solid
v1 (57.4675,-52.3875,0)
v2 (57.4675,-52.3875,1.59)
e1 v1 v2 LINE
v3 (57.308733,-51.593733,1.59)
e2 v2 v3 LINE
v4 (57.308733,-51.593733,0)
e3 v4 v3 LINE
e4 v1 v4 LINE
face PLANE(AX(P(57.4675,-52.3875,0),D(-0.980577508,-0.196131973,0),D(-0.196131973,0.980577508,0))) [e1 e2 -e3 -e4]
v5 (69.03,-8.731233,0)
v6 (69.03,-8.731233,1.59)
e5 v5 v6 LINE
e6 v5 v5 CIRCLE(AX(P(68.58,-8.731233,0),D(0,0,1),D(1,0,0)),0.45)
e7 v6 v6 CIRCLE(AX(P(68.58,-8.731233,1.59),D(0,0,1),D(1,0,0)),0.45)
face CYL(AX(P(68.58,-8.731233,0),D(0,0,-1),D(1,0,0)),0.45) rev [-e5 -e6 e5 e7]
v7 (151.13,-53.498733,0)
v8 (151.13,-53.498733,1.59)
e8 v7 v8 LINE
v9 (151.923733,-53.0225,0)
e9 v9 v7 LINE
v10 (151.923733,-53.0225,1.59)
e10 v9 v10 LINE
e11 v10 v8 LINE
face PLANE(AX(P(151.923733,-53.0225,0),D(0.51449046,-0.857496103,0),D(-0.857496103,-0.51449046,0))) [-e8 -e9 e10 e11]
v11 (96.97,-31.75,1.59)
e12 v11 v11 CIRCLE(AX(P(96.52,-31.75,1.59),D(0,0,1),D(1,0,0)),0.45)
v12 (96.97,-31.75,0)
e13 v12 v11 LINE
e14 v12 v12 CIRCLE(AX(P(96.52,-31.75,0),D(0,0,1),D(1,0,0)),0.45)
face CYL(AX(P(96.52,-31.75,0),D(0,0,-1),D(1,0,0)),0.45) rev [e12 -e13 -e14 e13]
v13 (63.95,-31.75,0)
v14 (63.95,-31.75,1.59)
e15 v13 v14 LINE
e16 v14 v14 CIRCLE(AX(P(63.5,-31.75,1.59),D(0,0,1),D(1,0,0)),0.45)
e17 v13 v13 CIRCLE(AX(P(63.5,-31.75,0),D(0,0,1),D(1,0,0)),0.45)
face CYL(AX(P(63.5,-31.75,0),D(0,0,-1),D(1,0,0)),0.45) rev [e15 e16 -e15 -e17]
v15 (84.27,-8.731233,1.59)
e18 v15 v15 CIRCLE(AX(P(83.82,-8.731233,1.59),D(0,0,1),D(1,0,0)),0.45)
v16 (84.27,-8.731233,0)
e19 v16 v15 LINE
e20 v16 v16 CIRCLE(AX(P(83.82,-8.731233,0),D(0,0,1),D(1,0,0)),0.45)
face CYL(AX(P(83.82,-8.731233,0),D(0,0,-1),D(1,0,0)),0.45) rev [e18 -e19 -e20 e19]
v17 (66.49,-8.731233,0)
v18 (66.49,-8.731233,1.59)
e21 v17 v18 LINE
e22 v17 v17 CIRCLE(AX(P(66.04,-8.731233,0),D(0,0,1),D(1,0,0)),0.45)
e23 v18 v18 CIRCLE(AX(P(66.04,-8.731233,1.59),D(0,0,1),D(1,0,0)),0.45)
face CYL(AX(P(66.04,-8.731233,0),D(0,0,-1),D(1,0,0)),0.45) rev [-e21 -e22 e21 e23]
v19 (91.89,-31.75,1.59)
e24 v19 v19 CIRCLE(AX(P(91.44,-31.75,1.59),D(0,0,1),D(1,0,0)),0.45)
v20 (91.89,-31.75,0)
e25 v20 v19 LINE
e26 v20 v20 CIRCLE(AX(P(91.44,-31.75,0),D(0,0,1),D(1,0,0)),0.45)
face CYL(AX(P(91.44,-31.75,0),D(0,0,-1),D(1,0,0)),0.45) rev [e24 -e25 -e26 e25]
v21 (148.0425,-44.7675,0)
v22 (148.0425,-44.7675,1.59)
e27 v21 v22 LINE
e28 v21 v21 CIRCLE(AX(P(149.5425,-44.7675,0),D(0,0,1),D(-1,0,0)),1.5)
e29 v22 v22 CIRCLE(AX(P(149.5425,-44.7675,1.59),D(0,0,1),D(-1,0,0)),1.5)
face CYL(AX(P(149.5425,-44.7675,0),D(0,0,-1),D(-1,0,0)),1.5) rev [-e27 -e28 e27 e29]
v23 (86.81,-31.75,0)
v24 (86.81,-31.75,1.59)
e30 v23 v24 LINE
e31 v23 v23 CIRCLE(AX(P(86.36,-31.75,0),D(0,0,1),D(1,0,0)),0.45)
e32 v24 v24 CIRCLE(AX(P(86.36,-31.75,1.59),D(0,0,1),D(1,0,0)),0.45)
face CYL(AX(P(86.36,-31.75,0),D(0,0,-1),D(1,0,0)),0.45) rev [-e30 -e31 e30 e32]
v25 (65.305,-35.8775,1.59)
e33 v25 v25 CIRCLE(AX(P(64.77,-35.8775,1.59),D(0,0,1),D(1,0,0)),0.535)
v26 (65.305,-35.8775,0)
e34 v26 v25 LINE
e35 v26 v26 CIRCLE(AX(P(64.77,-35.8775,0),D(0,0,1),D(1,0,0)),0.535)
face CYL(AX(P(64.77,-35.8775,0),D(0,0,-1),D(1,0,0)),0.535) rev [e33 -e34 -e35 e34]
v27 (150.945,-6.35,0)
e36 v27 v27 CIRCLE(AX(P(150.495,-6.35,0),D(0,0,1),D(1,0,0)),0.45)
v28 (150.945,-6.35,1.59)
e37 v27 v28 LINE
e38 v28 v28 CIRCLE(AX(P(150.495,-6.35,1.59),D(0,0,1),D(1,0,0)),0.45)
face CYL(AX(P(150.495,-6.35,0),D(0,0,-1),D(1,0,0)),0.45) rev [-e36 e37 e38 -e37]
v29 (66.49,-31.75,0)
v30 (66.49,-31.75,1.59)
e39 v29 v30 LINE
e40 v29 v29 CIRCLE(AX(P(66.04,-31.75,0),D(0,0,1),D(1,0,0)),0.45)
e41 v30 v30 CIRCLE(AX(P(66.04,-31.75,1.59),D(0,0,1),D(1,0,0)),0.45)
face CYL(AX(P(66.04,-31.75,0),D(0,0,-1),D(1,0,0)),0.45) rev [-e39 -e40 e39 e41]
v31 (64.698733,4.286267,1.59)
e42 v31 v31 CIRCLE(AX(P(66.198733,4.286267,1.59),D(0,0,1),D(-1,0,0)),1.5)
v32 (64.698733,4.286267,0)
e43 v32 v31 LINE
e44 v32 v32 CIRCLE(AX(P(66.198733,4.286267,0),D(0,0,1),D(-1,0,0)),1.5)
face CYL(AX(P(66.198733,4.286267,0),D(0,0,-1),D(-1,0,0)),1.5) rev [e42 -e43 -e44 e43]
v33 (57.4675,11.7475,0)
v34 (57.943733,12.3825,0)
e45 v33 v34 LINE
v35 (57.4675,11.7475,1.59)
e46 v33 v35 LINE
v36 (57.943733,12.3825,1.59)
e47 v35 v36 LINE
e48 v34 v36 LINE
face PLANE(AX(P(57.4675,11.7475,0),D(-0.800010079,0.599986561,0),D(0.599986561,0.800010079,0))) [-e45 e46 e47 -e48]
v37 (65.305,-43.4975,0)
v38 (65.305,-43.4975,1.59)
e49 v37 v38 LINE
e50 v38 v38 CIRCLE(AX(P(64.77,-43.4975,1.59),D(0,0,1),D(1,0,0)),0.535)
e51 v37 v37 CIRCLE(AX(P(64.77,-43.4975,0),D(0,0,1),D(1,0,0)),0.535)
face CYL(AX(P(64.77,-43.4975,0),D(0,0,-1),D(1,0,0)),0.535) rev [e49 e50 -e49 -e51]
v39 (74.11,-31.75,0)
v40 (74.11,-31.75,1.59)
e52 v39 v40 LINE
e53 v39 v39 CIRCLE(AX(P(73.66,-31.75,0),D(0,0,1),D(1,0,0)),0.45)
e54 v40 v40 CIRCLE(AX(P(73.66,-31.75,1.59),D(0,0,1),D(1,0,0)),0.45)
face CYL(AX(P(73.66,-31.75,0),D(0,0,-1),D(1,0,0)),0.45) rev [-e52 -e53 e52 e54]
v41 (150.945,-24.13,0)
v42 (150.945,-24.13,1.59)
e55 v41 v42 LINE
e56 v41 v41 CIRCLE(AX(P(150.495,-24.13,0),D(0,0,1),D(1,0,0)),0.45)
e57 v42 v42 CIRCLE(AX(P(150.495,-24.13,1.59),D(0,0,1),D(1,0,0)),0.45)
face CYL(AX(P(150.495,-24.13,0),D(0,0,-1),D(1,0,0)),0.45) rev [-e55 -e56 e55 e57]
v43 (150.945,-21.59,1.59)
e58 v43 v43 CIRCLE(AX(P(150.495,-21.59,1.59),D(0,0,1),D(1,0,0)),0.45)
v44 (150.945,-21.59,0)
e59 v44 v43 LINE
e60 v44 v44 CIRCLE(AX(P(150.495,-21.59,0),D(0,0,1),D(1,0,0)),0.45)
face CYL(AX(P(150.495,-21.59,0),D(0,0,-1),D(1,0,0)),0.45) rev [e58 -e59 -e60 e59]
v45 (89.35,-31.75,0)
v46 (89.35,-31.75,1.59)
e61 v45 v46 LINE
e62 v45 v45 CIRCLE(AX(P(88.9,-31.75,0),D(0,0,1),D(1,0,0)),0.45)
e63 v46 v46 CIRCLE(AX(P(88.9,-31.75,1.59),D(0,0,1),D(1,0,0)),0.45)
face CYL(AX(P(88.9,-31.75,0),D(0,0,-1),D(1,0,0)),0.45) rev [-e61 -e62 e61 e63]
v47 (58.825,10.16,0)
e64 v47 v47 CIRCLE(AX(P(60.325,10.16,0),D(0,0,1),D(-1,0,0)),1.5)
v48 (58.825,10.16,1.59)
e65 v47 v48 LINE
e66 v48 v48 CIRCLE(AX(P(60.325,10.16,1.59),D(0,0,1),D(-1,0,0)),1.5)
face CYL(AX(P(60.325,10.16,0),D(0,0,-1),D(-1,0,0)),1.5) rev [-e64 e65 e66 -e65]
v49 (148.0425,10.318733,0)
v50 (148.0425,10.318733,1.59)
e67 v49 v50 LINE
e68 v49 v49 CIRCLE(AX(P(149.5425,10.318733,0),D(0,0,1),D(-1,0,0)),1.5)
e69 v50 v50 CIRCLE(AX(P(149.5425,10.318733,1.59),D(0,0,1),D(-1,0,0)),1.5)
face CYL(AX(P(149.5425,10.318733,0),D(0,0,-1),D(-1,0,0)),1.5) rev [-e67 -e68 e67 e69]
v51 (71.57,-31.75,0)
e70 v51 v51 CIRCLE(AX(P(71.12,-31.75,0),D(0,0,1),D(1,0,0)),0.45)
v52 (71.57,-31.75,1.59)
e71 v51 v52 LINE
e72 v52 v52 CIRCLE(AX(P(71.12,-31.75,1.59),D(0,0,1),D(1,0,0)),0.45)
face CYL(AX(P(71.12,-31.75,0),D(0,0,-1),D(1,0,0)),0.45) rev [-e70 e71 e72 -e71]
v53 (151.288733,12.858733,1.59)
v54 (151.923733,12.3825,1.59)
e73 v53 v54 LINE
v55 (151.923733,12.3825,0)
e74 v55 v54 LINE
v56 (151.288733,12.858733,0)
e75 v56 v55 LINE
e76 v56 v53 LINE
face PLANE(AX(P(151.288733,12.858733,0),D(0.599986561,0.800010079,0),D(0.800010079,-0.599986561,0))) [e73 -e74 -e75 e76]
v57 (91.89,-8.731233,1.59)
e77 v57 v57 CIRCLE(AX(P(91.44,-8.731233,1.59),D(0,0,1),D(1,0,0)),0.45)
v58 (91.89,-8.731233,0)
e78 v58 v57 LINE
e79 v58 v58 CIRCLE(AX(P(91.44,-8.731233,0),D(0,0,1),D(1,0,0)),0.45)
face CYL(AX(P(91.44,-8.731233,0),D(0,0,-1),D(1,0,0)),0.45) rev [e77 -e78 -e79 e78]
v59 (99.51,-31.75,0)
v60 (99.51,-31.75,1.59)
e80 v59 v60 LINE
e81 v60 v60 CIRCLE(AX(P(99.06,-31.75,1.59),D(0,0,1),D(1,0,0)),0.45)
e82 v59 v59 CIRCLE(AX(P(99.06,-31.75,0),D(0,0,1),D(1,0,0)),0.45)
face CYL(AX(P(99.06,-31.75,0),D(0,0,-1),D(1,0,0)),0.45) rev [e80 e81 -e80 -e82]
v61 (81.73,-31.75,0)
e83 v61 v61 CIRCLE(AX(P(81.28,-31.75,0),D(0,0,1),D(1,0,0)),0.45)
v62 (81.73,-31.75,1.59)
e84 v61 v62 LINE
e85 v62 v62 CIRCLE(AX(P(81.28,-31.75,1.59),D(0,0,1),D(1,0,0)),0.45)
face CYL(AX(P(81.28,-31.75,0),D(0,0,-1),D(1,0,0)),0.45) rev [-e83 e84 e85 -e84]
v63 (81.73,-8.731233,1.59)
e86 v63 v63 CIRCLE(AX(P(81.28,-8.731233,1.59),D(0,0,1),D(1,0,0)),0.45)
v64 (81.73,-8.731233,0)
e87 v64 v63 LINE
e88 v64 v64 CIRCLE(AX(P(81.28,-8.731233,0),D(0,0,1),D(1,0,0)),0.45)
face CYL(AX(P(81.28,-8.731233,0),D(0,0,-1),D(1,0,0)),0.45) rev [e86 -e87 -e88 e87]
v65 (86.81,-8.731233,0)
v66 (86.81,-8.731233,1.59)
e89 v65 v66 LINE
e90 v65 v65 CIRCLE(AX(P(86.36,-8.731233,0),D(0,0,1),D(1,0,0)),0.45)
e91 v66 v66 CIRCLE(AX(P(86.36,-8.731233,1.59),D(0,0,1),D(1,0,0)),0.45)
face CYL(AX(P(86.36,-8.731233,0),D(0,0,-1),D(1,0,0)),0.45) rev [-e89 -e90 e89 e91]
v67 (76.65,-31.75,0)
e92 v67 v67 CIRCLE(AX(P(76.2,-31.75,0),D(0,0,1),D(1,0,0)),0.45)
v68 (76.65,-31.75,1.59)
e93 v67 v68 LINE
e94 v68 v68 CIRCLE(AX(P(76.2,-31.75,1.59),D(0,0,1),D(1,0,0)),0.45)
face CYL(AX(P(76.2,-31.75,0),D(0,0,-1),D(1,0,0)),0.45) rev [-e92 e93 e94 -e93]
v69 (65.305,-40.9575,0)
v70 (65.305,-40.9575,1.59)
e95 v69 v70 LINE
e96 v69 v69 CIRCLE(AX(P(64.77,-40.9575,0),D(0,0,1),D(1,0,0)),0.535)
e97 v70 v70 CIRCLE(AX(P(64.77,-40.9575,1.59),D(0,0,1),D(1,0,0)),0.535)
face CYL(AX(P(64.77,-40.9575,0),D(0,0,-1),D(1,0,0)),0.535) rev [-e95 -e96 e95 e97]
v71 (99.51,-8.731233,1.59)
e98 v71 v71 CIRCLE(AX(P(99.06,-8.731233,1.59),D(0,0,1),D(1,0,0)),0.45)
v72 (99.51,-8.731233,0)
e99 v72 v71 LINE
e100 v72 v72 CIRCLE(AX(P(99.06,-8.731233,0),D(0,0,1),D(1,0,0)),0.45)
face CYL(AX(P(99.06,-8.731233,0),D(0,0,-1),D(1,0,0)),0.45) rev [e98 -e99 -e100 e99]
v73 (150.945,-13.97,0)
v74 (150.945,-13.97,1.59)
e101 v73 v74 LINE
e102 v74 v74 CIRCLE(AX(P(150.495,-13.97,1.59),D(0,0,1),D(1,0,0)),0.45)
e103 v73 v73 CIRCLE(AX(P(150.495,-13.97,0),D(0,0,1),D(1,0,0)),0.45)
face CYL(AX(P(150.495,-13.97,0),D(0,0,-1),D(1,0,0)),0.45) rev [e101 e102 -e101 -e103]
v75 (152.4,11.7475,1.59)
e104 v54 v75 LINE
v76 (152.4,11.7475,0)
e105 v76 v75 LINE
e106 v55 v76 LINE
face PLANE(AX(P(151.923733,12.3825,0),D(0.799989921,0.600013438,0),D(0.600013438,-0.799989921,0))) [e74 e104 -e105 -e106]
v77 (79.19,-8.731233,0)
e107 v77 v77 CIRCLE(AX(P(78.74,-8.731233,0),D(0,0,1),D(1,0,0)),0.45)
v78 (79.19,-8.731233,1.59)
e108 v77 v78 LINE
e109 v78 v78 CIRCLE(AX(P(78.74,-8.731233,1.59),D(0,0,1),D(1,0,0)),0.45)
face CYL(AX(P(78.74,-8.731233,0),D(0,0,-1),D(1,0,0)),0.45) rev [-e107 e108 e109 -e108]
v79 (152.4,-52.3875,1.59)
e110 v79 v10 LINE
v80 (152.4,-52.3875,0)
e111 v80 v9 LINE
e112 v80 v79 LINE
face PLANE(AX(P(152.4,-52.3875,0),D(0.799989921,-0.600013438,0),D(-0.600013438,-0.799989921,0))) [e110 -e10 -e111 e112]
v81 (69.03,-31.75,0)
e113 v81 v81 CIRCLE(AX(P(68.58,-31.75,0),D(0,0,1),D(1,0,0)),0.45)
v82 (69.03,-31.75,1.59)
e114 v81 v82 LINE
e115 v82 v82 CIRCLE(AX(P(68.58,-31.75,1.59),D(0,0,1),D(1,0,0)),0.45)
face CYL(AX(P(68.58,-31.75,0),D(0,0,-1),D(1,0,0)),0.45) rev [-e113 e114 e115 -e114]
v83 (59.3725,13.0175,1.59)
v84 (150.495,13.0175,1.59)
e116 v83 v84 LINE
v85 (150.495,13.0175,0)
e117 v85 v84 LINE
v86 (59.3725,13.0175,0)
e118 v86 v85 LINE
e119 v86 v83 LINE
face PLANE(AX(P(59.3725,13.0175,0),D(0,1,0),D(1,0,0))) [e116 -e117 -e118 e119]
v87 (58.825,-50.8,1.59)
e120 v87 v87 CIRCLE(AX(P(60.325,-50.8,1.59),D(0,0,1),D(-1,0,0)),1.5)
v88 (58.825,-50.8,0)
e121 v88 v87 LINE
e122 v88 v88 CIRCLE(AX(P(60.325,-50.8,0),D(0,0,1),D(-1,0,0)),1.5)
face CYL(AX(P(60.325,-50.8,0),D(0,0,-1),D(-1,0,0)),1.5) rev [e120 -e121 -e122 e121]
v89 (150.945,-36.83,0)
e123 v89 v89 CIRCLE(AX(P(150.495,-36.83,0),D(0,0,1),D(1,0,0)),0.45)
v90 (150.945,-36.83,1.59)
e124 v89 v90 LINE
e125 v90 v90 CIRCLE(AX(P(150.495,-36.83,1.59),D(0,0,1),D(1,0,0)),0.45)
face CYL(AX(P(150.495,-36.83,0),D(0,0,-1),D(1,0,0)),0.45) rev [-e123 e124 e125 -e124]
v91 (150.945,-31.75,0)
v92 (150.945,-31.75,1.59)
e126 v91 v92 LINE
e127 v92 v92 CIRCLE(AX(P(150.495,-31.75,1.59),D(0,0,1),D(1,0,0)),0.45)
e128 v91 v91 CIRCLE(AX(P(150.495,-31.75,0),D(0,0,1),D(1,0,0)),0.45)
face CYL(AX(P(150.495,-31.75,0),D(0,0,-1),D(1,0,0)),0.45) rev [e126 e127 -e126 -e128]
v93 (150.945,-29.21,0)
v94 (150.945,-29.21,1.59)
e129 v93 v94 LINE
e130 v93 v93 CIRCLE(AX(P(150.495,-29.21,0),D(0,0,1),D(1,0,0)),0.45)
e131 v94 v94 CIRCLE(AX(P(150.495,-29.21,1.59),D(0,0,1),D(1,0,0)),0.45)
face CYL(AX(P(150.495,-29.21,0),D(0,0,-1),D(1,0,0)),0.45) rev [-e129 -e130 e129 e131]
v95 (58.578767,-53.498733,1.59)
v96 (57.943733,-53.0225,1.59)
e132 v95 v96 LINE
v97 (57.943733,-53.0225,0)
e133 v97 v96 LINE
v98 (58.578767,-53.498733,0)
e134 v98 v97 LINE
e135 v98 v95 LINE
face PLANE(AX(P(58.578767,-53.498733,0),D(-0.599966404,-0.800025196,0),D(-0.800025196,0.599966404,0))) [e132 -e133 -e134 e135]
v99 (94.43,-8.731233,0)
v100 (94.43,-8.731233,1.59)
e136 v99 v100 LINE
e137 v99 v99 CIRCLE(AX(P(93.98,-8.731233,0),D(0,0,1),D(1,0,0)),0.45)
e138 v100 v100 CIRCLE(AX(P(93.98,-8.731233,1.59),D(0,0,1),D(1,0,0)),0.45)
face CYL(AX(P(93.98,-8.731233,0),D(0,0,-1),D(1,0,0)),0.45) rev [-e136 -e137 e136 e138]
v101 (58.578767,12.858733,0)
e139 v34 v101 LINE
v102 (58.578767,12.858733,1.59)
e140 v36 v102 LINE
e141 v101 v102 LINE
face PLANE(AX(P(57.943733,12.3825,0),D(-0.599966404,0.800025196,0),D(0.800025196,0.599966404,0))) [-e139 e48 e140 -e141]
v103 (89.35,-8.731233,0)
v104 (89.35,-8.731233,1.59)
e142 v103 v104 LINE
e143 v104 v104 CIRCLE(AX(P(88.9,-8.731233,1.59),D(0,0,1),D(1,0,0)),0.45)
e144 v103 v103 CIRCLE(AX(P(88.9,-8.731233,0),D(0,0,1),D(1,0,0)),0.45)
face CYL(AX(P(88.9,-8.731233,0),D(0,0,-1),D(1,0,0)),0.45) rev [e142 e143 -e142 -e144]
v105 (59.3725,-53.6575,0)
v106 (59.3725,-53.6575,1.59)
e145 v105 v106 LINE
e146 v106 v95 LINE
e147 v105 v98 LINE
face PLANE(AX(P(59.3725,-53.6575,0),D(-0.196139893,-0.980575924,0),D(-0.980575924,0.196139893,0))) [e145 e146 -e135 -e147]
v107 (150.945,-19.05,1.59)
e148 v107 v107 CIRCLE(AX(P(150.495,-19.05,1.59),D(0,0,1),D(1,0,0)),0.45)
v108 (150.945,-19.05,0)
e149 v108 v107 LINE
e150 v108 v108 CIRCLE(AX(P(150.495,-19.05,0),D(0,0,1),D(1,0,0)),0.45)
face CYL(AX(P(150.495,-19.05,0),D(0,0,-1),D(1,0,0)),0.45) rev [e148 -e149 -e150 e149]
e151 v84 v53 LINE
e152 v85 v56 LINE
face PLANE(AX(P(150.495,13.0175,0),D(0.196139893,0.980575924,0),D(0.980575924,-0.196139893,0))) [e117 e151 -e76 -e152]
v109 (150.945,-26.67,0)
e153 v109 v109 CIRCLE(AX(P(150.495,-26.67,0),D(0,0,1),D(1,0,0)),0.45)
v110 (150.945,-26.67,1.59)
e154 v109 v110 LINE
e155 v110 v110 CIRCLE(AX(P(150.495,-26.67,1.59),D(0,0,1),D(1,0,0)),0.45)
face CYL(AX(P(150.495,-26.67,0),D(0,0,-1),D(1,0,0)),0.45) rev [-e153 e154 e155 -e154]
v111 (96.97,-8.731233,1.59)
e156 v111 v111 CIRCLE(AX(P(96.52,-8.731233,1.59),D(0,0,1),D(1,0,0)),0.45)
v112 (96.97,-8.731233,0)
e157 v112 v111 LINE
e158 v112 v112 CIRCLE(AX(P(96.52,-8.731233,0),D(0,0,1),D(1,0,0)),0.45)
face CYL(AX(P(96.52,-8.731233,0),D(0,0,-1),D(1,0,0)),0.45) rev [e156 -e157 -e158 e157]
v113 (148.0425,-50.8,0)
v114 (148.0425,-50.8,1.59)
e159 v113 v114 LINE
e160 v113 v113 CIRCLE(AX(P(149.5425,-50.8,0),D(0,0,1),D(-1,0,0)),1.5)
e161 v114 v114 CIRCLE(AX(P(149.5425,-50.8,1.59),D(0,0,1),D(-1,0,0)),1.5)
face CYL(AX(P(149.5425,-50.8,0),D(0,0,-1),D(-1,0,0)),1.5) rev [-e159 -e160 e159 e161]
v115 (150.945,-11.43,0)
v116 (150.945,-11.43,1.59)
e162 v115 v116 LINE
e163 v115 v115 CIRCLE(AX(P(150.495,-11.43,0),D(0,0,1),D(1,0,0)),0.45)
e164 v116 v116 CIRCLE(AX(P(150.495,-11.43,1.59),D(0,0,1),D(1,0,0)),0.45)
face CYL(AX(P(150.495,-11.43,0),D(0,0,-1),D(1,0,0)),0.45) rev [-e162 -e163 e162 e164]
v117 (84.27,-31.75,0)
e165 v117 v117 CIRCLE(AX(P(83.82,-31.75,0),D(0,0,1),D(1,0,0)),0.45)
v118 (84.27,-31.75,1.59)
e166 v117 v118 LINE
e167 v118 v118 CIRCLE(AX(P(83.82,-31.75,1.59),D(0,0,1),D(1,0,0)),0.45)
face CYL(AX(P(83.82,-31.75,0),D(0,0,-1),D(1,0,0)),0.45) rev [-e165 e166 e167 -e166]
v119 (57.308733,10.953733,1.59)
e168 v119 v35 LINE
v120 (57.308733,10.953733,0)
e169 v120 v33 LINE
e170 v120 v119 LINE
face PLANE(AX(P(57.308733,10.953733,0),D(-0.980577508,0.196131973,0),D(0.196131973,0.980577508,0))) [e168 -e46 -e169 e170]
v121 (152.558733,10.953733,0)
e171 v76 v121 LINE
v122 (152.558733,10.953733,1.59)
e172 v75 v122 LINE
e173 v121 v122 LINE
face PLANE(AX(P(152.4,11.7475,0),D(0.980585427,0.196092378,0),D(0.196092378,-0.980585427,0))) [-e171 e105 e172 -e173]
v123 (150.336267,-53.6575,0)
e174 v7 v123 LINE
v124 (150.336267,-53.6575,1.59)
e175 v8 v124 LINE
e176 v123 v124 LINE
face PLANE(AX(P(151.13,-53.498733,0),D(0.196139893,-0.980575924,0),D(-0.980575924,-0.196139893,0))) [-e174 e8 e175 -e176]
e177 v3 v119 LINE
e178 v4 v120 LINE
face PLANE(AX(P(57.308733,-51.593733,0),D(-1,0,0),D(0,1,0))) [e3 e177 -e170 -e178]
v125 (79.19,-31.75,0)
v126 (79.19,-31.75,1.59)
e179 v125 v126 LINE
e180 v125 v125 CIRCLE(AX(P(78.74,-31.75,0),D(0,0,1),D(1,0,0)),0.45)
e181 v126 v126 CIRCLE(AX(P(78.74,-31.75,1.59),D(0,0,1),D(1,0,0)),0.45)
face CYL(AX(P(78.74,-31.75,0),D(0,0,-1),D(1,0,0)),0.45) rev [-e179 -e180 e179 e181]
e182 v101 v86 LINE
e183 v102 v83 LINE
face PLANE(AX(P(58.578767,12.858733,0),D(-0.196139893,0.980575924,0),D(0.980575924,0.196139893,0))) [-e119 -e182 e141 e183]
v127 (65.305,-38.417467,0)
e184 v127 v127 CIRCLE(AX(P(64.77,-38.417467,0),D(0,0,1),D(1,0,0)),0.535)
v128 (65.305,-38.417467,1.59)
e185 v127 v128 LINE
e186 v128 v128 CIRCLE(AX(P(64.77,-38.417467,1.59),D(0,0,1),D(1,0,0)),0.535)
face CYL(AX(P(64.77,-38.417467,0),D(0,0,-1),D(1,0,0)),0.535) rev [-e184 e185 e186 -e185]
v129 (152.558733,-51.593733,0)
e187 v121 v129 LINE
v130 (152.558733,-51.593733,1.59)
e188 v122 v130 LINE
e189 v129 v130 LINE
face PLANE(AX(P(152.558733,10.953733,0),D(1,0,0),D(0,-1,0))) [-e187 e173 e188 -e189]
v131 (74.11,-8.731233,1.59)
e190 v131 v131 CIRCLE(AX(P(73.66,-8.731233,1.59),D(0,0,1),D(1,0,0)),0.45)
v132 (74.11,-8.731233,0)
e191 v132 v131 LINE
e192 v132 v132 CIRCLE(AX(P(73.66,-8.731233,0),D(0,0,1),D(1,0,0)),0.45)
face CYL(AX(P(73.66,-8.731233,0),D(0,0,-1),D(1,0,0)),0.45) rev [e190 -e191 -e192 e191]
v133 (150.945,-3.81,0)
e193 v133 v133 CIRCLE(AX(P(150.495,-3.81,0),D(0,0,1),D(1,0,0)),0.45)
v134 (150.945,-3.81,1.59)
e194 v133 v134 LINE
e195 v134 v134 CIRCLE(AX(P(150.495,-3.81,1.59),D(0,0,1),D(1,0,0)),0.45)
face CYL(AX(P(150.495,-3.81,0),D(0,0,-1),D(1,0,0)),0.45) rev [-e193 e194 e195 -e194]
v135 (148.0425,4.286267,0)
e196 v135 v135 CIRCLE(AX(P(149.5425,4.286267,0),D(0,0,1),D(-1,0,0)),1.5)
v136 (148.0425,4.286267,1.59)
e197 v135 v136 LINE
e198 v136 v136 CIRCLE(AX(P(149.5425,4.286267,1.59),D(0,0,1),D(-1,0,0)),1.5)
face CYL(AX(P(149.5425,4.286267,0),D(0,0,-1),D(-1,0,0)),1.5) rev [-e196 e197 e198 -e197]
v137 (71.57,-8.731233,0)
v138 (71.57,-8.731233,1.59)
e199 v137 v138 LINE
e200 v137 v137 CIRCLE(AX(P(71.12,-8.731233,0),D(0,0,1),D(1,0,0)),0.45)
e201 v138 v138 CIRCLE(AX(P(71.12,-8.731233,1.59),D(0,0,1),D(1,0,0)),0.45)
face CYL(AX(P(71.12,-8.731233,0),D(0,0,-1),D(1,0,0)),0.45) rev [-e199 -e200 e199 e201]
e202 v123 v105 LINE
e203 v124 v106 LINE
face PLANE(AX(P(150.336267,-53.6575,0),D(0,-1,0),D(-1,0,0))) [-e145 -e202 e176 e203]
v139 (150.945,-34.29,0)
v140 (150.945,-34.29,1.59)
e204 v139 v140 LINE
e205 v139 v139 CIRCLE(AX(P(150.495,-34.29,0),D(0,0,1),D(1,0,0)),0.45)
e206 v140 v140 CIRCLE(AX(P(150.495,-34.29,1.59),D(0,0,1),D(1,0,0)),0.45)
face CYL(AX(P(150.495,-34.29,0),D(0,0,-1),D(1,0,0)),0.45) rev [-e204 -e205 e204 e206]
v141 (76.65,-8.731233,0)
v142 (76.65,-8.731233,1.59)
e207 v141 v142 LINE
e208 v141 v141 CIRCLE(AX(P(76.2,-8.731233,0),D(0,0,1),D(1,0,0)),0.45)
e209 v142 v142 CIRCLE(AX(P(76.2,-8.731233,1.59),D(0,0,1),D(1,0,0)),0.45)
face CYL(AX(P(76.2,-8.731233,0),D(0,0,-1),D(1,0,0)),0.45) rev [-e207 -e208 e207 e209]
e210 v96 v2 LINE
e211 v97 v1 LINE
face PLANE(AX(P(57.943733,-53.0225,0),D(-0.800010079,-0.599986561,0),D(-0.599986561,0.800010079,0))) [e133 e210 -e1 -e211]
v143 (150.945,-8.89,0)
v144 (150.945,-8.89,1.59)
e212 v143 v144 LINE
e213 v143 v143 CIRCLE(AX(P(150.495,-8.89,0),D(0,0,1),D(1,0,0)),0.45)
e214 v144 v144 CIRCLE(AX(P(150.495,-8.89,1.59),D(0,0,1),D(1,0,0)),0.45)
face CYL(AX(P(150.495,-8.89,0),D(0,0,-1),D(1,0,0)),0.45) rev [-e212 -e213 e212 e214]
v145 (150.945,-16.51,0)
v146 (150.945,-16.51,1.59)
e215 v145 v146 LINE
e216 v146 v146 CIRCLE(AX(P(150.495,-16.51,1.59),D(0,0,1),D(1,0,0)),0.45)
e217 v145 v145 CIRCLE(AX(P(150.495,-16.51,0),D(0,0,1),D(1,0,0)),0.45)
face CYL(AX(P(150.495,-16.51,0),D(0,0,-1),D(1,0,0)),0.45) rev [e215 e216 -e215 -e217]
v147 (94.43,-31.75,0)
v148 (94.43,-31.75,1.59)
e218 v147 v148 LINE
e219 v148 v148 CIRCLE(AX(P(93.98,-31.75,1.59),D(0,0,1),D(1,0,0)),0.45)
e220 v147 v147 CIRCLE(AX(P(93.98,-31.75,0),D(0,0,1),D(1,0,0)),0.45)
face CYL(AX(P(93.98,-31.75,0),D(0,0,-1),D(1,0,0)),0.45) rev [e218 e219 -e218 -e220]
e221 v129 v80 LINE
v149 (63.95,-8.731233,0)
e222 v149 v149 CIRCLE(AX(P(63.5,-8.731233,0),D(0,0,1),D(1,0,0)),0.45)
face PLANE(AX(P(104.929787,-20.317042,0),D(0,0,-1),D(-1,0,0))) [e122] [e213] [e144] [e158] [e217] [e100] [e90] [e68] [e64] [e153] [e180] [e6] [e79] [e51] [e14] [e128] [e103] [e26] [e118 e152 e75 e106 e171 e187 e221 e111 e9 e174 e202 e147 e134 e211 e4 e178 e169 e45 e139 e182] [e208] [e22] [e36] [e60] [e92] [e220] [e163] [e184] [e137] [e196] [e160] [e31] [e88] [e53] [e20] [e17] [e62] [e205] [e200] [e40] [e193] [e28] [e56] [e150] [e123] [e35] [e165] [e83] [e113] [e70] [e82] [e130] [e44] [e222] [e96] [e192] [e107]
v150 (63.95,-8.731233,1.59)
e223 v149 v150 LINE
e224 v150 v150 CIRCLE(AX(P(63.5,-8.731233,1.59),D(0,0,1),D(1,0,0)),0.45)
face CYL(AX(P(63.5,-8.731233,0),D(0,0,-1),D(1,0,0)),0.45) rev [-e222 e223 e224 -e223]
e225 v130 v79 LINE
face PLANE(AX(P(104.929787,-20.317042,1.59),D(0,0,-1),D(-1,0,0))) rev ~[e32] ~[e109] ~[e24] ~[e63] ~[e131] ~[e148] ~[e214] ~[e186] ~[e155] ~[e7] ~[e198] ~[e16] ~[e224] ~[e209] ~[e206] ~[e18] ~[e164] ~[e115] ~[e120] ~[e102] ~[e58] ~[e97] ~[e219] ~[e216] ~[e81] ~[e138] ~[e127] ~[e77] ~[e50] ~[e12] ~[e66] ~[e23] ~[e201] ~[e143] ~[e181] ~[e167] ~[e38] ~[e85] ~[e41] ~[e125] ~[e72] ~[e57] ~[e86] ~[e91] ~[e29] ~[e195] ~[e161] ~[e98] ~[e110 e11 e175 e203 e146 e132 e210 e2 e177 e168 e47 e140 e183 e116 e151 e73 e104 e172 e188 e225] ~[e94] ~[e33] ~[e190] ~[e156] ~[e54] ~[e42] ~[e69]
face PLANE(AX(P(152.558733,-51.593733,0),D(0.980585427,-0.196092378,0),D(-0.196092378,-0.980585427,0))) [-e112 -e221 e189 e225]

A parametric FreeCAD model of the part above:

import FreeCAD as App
import Part
import Sketcher

V = App.Vector
Q = App.Units.Quantity


def add_polygon(sketch, points):
    """Adds a closed chain of lines whose ends are joined by coincident constraints."""
    first, n = sketch.GeometryCount, len(points)
    for a, b in zip(points, points[1:] + points[:1]):
        sketch.addGeometry(Part.LineSegment(App.Vector(*a, 0), App.Vector(*b, 0)), False)
    for i in range(n):
        sketch.addConstraint(Sketcher.Constraint("Coincident", first + i, 2, first + (i + 1) % n, 1))

doc = App.newDocument("Part")
params = doc.addObject("Spreadsheet::Sheet", "Params")
for row, (alias, value) in enumerate([
    ("sketch1_diameter", "3 mm"),
    ("sketch1_diameter2", "0.9 mm"),
    ("sketch1_diameter3", "1.07 mm"),
    ("pad1_length", "1.59 mm"),
], start=1):
    params.set(f"A{row}", alias)
    params.set(f"B{row}", "=" + value)
    params.setAlias(f"B{row}", alias)

body = doc.addObject("PartDesign::Body", "Body")

sketch1 = body.newObject("Sketcher::SketchObject", "Sketch")
sketch1.AttachmentSupport = (doc.getObject("XY_Plane"), [""])
sketch1.MapMode = "FlatFace"
add_polygon(sketch1, [(57.4675, 11.7475), (57.308733, 10.953733), (57.308733, -51.593733), (57.4675, -52.3875), (57.943733, -53.0225), (58.578767, -53.498733), (59.3725, -53.6575), (150.336267, -53.6575), (151.13, -53.498733), (151.923733, -53.0225), (152.4, -52.3875), (152.558733, -51.593733), (152.558733, 10.953733), (152.4, 11.7475), (151.923733, 12.3825), (151.288733, 12.858733), (150.495, 13.0175), (59.3725, 13.0175), (58.578767, 12.858733), (57.943733, 12.3825)])
sketch1.addGeometry(Part.Circle(V(149.5425, -50.8, 0), V(0, 0, 1), 1.5), False)
sketch1.addGeometry(Part.Circle(V(149.5425, -44.7675, 0), V(0, 0, 1), 1.5), False)
sketch1.addGeometry(Part.Circle(V(150.495, -36.83, 0), V(0, 0, 1), 0.45), False)
sketch1.addGeometry(Part.Circle(V(150.495, -34.29, 0), V(0, 0, 1), 0.45), False)
sketch1.addGeometry(Part.Circle(V(150.495, -31.75, 0), V(0, 0, 1), 0.45), False)
sketch1.addGeometry(Part.Circle(V(150.495, -29.21, 0), V(0, 0, 1), 0.45), False)
sketch1.addGeometry(Part.Circle(V(150.495, -26.67, 0), V(0, 0, 1), 0.45), False)
sketch1.addGeometry(Part.Circle(V(150.495, -24.13, 0), V(0, 0, 1), 0.45), False)
sketch1.addGeometry(Part.Circle(V(150.495, -21.59, 0), V(0, 0, 1), 0.45), False)
sketch1.addGeometry(Part.Circle(V(60.325, -50.8, 0), V(0, 0, 1), 1.5), False)
sketch1.addGeometry(Part.Circle(V(64.77, -43.4975, 0), V(0, 0, 1), 0.535), False)
sketch1.addGeometry(Part.Circle(V(64.77, -40.9575, 0), V(0, 0, 1), 0.535), False)
sketch1.addGeometry(Part.Circle(V(64.77, -38.417467, 0), V(0, 0, 1), 0.535), False)
sketch1.addGeometry(Part.Circle(V(99.06, -31.75, 0), V(0, 0, 1), 0.45), False)
sketch1.addGeometry(Part.Circle(V(96.52, -31.75, 0), V(0, 0, 1), 0.45), False)
sketch1.addGeometry(Part.Circle(V(93.98, -31.75, 0), V(0, 0, 1), 0.45), False)
sketch1.addGeometry(Part.Circle(V(91.44, -31.75, 0), V(0, 0, 1), 0.45), False)
sketch1.addGeometry(Part.Circle(V(88.9, -31.75, 0), V(0, 0, 1), 0.45), False)
sketch1.addGeometry(Part.Circle(V(86.36, -31.75, 0), V(0, 0, 1), 0.45), False)
sketch1.addGeometry(Part.Circle(V(83.82, -31.75, 0), V(0, 0, 1), 0.45), False)
sketch1.addGeometry(Part.Circle(V(81.28, -31.75, 0), V(0, 0, 1), 0.45), False)
sketch1.addGeometry(Part.Circle(V(78.74, -31.75, 0), V(0, 0, 1), 0.45), False)
sketch1.addGeometry(Part.Circle(V(76.2, -31.75, 0), V(0, 0, 1), 0.45), False)
sketch1.addGeometry(Part.Circle(V(73.66, -31.75, 0), V(0, 0, 1), 0.45), False)
sketch1.addGeometry(Part.Circle(V(71.12, -31.75, 0), V(0, 0, 1), 0.45), False)
sketch1.addGeometry(Part.Circle(V(64.77, -35.8775, 0), V(0, 0, 1), 0.535), False)
sketch1.addGeometry(Part.Circle(V(68.58, -31.75, 0), V(0, 0, 1), 0.45), False)
sketch1.addGeometry(Part.Circle(V(66.04, -31.75, 0), V(0, 0, 1), 0.45), False)
sketch1.addGeometry(Part.Circle(V(63.5, -31.75, 0), V(0, 0, 1), 0.45), False)
sketch1.addGeometry(Part.Circle(V(150.495, -19.05, 0), V(0, 0, 1), 0.45), False)
sketch1.addGeometry(Part.Circle(V(150.495, -16.51, 0), V(0, 0, 1), 0.45), False)
sketch1.addGeometry(Part.Circle(V(150.495, -13.97, 0), V(0, 0, 1), 0.45), False)
sketch1.addGeometry(Part.Circle(V(150.495, -11.43, 0), V(0, 0, 1), 0.45), False)
sketch1.addGeometry(Part.Circle(V(150.495, -8.89, 0), V(0, 0, 1), 0.45), False)
sketch1.addGeometry(Part.Circle(V(150.495, -6.35, 0), V(0, 0, 1), 0.45), False)
sketch1.addGeometry(Part.Circle(V(150.495, -3.81, 0), V(0, 0, 1), 0.45), False)
sketch1.addGeometry(Part.Circle(V(149.5425, 4.286267, 0), V(0, 0, 1), 1.5), False)
sketch1.addGeometry(Part.Circle(V(149.5425, 10.318733, 0), V(0, 0, 1), 1.5), False)
sketch1.addGeometry(Part.Circle(V(99.06, -8.731233, 0), V(0, 0, 1), 0.45), False)
sketch1.addGeometry(Part.Circle(V(96.52, -8.731233, 0), V(0, 0, 1), 0.45), False)
sketch1.addGeometry(Part.Circle(V(93.98, -8.731233, 0), V(0, 0, 1), 0.45), False)
sketch1.addGeometry(Part.Circle(V(91.44, -8.731233, 0), V(0, 0, 1), 0.45), False)
sketch1.addGeometry(Part.Circle(V(88.9, -8.731233, 0), V(0, 0, 1), 0.45), False)
sketch1.addGeometry(Part.Circle(V(86.36, -8.731233, 0), V(0, 0, 1), 0.45), False)
sketch1.addGeometry(Part.Circle(V(83.82, -8.731233, 0), V(0, 0, 1), 0.45), False)
sketch1.addGeometry(Part.Circle(V(81.28, -8.731233, 0), V(0, 0, 1), 0.45), False)
sketch1.addGeometry(Part.Circle(V(78.74, -8.731233, 0), V(0, 0, 1), 0.45), False)
sketch1.addGeometry(Part.Circle(V(76.2, -8.731233, 0), V(0, 0, 1), 0.45), False)
sketch1.addGeometry(Part.Circle(V(73.66, -8.731233, 0), V(0, 0, 1), 0.45), False)
sketch1.addGeometry(Part.Circle(V(71.12, -8.731233, 0), V(0, 0, 1), 0.45), False)
sketch1.addGeometry(Part.Circle(V(68.58, -8.731233, 0), V(0, 0, 1), 0.45), False)
sketch1.addGeometry(Part.Circle(V(66.04, -8.731233, 0), V(0, 0, 1), 0.45), False)
sketch1.addGeometry(Part.Circle(V(63.5, -8.731233, 0), V(0, 0, 1), 0.45), False)
sketch1.addGeometry(Part.Circle(V(66.198733, 4.286267, 0), V(0, 0, 1), 1.5), False)
sketch1.addGeometry(Part.Circle(V(60.325, 10.16, 0), V(0, 0, 1), 1.5), False)
sketch1.addConstraint(Sketcher.Constraint("Vertical", 1))
sketch1.addConstraint(Sketcher.Constraint("Horizontal", 6))
sketch1.addConstraint(Sketcher.Constraint("Vertical", 11))
sketch1.addConstraint(Sketcher.Constraint("Horizontal", 16))
sketch1.addConstraint(Sketcher.Constraint("Equal", 20, 21))
sketch1.addConstraint(Sketcher.Constraint("Equal", 22, 23))
sketch1.addConstraint(Sketcher.Constraint("Equal", 23, 24))
sketch1.addConstraint(Sketcher.Constraint("Equal", 24, 25))
sketch1.addConstraint(Sketcher.Constraint("Equal", 25, 26))
sketch1.addConstraint(Sketcher.Constraint("Equal", 26, 27))
sketch1.addConstraint(Sketcher.Constraint("Equal", 27, 28))
sketch1.addConstraint(Sketcher.Constraint("Equal", 21, 29))
sketch1.addConstraint(Sketcher.Constraint("Equal", 30, 31))
sketch1.addConstraint(Sketcher.Constraint("Equal", 31, 32))
sketch1.addConstraint(Sketcher.Constraint("Equal", 28, 33))
sketch1.addConstraint(Sketcher.Constraint("Equal", 33, 34))
sketch1.addConstraint(Sketcher.Constraint("Equal", 34, 35))
sketch1.addConstraint(Sketcher.Constraint("Equal", 35, 36))
sketch1.addConstraint(Sketcher.Constraint("Equal", 36, 37))
sketch1.addConstraint(Sketcher.Constraint("Equal", 37, 38))
sketch1.addConstraint(Sketcher.Constraint("Equal", 38, 39))
sketch1.addConstraint(Sketcher.Constraint("Equal", 39, 40))
sketch1.addConstraint(Sketcher.Constraint("Equal", 40, 41))
sketch1.addConstraint(Sketcher.Constraint("Equal", 41, 42))
sketch1.addConstraint(Sketcher.Constraint("Equal", 42, 43))
sketch1.addConstraint(Sketcher.Constraint("Equal", 43, 44))
sketch1.addConstraint(Sketcher.Constraint("Equal", 32, 45))
sketch1.addConstraint(Sketcher.Constraint("Equal", 44, 46))
sketch1.addConstraint(Sketcher.Constraint("Equal", 46, 47))
sketch1.addConstraint(Sketcher.Constraint("Equal", 47, 48))
sketch1.addConstraint(Sketcher.Constraint("Equal", 48, 49))
sketch1.addConstraint(Sketcher.Constraint("Equal", 49, 50))
sketch1.addConstraint(Sketcher.Constraint("Equal", 50, 51))
sketch1.addConstraint(Sketcher.Constraint("Equal", 51, 52))
sketch1.addConstraint(Sketcher.Constraint("Equal", 52, 53))
sketch1.addConstraint(Sketcher.Constraint("Equal", 53, 54))
sketch1.addConstraint(Sketcher.Constraint("Equal", 54, 55))
sketch1.addConstraint(Sketcher.Constraint("Equal", 29, 56))
sketch1.addConstraint(Sketcher.Constraint("Equal", 56, 57))
sketch1.addConstraint(Sketcher.Constraint("Equal", 55, 58))
sketch1.addConstraint(Sketcher.Constraint("Equal", 58, 59))
sketch1.addConstraint(Sketcher.Constraint("Equal", 59, 60))
sketch1.addConstraint(Sketcher.Constraint("Equal", 60, 61))
sketch1.addConstraint(Sketcher.Constraint("Equal", 61, 62))
sketch1.addConstraint(Sketcher.Constraint("Equal", 62, 63))
sketch1.addConstraint(Sketcher.Constraint("Equal", 63, 64))
sketch1.addConstraint(Sketcher.Constraint("Equal", 64, 65))
sketch1.addConstraint(Sketcher.Constraint("Equal", 65, 66))
sketch1.addConstraint(Sketcher.Constraint("Equal", 66, 67))
sketch1.addConstraint(Sketcher.Constraint("Equal", 67, 68))
sketch1.addConstraint(Sketcher.Constraint("Equal", 68, 69))
sketch1.addConstraint(Sketcher.Constraint("Equal", 69, 70))
sketch1.addConstraint(Sketcher.Constraint("Equal", 70, 71))
sketch1.addConstraint(Sketcher.Constraint("Equal", 71, 72))
sketch1.addConstraint(Sketcher.Constraint("Equal", 57, 73))
sketch1.addConstraint(Sketcher.Constraint("Equal", 73, 74))
sketch1.addConstraint(Sketcher.Constraint("Parallel", 5, 15))
sketch1.addConstraint(Sketcher.Constraint("Parallel", 7, 17))
sketch1.addConstraint(Sketcher.Constraint("Perpendicular", 14, 19))
sketch1.addConstraint(Sketcher.Constraint("Horizontal", 20, 3, 29, 3))
sketch1.addConstraint(Sketcher.Constraint("Horizontal", 24, 3, 33, 3))
sketch1.addConstraint(Sketcher.Constraint("Horizontal", 33, 3, 34, 3))
sketch1.addConstraint(Sketcher.Constraint("Horizontal", 34, 3, 35, 3))
sketch1.addConstraint(Sketcher.Constraint("Horizontal", 35, 3, 36, 3))
sketch1.addConstraint(Sketcher.Constraint("Horizontal", 36, 3, 37, 3))
sketch1.addConstraint(Sketcher.Constraint("Horizontal", 37, 3, 38, 3))
sketch1.addConstraint(Sketcher.Constraint("Horizontal", 38, 3, 39, 3))
sketch1.addConstraint(Sketcher.Constraint("Horizontal", 39, 3, 40, 3))
sketch1.addConstraint(Sketcher.Constraint("Horizontal", 40, 3, 41, 3))
sketch1.addConstraint(Sketcher.Constraint("Horizontal", 41, 3, 42, 3))
sketch1.addConstraint(Sketcher.Constraint("Horizontal", 42, 3, 43, 3))
sketch1.addConstraint(Sketcher.Constraint("Horizontal", 43, 3, 44, 3))
sketch1.addConstraint(Sketcher.Constraint("Horizontal", 44, 3, 46, 3))
sketch1.addConstraint(Sketcher.Constraint("Horizontal", 46, 3, 47, 3))
sketch1.addConstraint(Sketcher.Constraint("Horizontal", 47, 3, 48, 3))
sketch1.addConstraint(Sketcher.Constraint("Horizontal", 58, 3, 59, 3))
sketch1.addConstraint(Sketcher.Constraint("Horizontal", 59, 3, 60, 3))
sketch1.addConstraint(Sketcher.Constraint("Horizontal", 60, 3, 61, 3))
sketch1.addConstraint(Sketcher.Constraint("Horizontal", 61, 3, 62, 3))
sketch1.addConstraint(Sketcher.Constraint("Horizontal", 62, 3, 63, 3))
sketch1.addConstraint(Sketcher.Constraint("Horizontal", 63, 3, 64, 3))
sketch1.addConstraint(Sketcher.Constraint("Horizontal", 64, 3, 65, 3))
sketch1.addConstraint(Sketcher.Constraint("Horizontal", 65, 3, 66, 3))
sketch1.addConstraint(Sketcher.Constraint("Horizontal", 66, 3, 67, 3))
sketch1.addConstraint(Sketcher.Constraint("Horizontal", 67, 3, 68, 3))
sketch1.addConstraint(Sketcher.Constraint("Horizontal", 68, 3, 69, 3))
sketch1.addConstraint(Sketcher.Constraint("Horizontal", 69, 3, 70, 3))
sketch1.addConstraint(Sketcher.Constraint("Horizontal", 70, 3, 71, 3))
sketch1.addConstraint(Sketcher.Constraint("Horizontal", 71, 3, 72, 3))
sketch1.addConstraint(Sketcher.Constraint("Horizontal", 56, 3, 73, 3))
sketch1.addConstraint(Sketcher.Constraint("Horizontal", 4, 2, 7, 2))
sketch1.addConstraint(Sketcher.Constraint("Horizontal", 3, 2, 8, 2))
sketch1.addConstraint(Sketcher.Constraint("Horizontal", 2, 2, 9, 2))
sketch1.addConstraint(Sketcher.Constraint("Horizontal", 1, 2, 10, 2))
sketch1.addConstraint(Sketcher.Constraint("Horizontal", 0, 2, 11, 2))
sketch1.addConstraint(Sketcher.Constraint("Horizontal", 14, 2, 17, 2))
sketch1.addConstraint(Sketcher.Constraint("Horizontal", 13, 2, 18, 2))
sketch1.addConstraint(Sketcher.Constraint("Horizontal", 12, 2, 19, 2))
sketch1.addConstraint(Sketcher.Constraint("Vertical", 20, 3, 21, 3))
sketch1.addConstraint(Sketcher.Constraint("Vertical", 22, 3, 23, 3))
sketch1.addConstraint(Sketcher.Constraint("Vertical", 23, 3, 24, 3))
sketch1.addConstraint(Sketcher.Constraint("Vertical", 24, 3, 25, 3))
sketch1.addConstraint(Sketcher.Constraint("Vertical", 25, 3, 26, 3))
sketch1.addConstraint(Sketcher.Constraint("Vertical", 26, 3, 27, 3))
sketch1.addConstraint(Sketcher.Constraint("Vertical", 27, 3, 28, 3))
sketch1.addConstraint(Sketcher.Constraint("Vertical", 30, 3, 31, 3))
sketch1.addConstraint(Sketcher.Constraint("Vertical", 31, 3, 32, 3))
sketch1.addConstraint(Sketcher.Constraint("Vertical", 32, 3, 45, 3))
sketch1.addConstraint(Sketcher.Constraint("Vertical", 28, 3, 49, 3))
sketch1.addConstraint(Sketcher.Constraint("Vertical", 49, 3, 50, 3))
sketch1.addConstraint(Sketcher.Constraint("Vertical", 50, 3, 51, 3))
sketch1.addConstraint(Sketcher.Constraint("Vertical", 51, 3, 52, 3))
sketch1.addConstraint(Sketcher.Constraint("Vertical", 52, 3, 53, 3))
sketch1.addConstraint(Sketcher.Constraint("Vertical", 53, 3, 54, 3))
sketch1.addConstraint(Sketcher.Constraint("Vertical", 54, 3, 55, 3))
sketch1.addConstraint(Sketcher.Constraint("Vertical", 21, 3, 56, 3))
sketch1.addConstraint(Sketcher.Constraint("Vertical", 56, 3, 57, 3))
sketch1.addConstraint(Sketcher.Constraint("Vertical", 33, 3, 58, 3))
sketch1.addConstraint(Sketcher.Constraint("Vertical", 34, 3, 59, 3))
sketch1.addConstraint(Sketcher.Constraint("Vertical", 35, 3, 60, 3))
sketch1.addConstraint(Sketcher.Constraint("Vertical", 36, 3, 61, 3))
sketch1.addConstraint(Sketcher.Constraint("Vertical", 37, 3, 62, 3))
sketch1.addConstraint(Sketcher.Constraint("Vertical", 38, 3, 63, 3))
sketch1.addConstraint(Sketcher.Constraint("Vertical", 39, 3, 64, 3))
sketch1.addConstraint(Sketcher.Constraint("Vertical", 40, 3, 65, 3))
sketch1.addConstraint(Sketcher.Constraint("Vertical", 41, 3, 66, 3))
sketch1.addConstraint(Sketcher.Constraint("Vertical", 42, 3, 67, 3))
sketch1.addConstraint(Sketcher.Constraint("Vertical", 43, 3, 68, 3))
sketch1.addConstraint(Sketcher.Constraint("Vertical", 44, 3, 69, 3))
sketch1.addConstraint(Sketcher.Constraint("Vertical", 46, 3, 70, 3))
sketch1.addConstraint(Sketcher.Constraint("Vertical", 47, 3, 71, 3))
sketch1.addConstraint(Sketcher.Constraint("Vertical", 48, 3, 72, 3))
sketch1.addConstraint(Sketcher.Constraint("Vertical", 29, 3, 74, 3))
sketch1.addConstraint(Sketcher.Constraint("Vertical", 9, 2, 12, 2))
sketch1.addConstraint(Sketcher.Constraint("Vertical", 8, 2, 13, 2))
sketch1.addConstraint(Sketcher.Constraint("Vertical", 55, 3, 15, 2))
sketch1.addConstraint(Sketcher.Constraint("Vertical", 5, 2, 16, 2))
sketch1.addConstraint(Sketcher.Constraint("Vertical", 4, 2, 17, 2))
sketch1.addConstraint(Sketcher.Constraint("Vertical", 3, 2, 18, 2))
sketch1.addConstraint(Sketcher.Constraint("Vertical", 2, 2, 19, 2))
sketch1.addConstraint(Sketcher.Constraint("Equal", 0, 2))
sketch1.addConstraint(Sketcher.Constraint("Equal", 5, 7))
sketch1.addConstraint(Sketcher.Constraint("Equal", 9, 13))
sketch1.addConstraint(Sketcher.Constraint("Equal", 3, 14))
sketch1.addConstraint(Sketcher.Constraint("Equal", 4, 18))
sketch1.addConstraint(Sketcher.Constraint("Diameter", 20, Q("3 mm")))
sketch1.addConstraint(Sketcher.Constraint("Diameter", 22, Q("0.9 mm")))
sketch1.addConstraint(Sketcher.Constraint("Diameter", 30, Q("1.07 mm")))
sketch1.addConstraint(Sketcher.Constraint("DistanceY", 20, 3, -1, 1, Q("50.8 mm")))
sketch1.addConstraint(Sketcher.Constraint("DistanceX", -1, 1, 37, 3, Q("88.9 mm")))
sketch1.addConstraint(Sketcher.Constraint("DistanceX", -1, 1, 42, 3, Q("76.2 mm")))
sketch1.addConstraint(Sketcher.Constraint("DistanceX", -1, 1, 48, 3, Q("63.5 mm")))
sketch1.addConstraint(Sketcher.Constraint("DistanceX", -1, 1, 9, 2, Q("152.4 mm")))
sketch1.addConstraint(Sketcher.Constraint("DistanceY", 22, 3, -1, 1, Q("36.83 mm")))
sketch1.addConstraint(Sketcher.Constraint("DistanceY", 23, 3, -1, 1, Q("34.29 mm")))
sketch1.addConstraint(Sketcher.Constraint("DistanceY", 24, 3, -1, 1, Q("31.75 mm")))
sketch1.addConstraint(Sketcher.Constraint("DistanceY", 25, 3, -1, 1, Q("29.21 mm")))
sketch1.addConstraint(Sketcher.Constraint("DistanceY", 26, 3, -1, 1, Q("26.67 mm")))
sketch1.addConstraint(Sketcher.Constraint("DistanceY", 27, 3, -1, 1, Q("24.13 mm")))
sketch1.addConstraint(Sketcher.Constraint("DistanceY", 28, 3, -1, 1, Q("21.59 mm")))
sketch1.addConstraint(Sketcher.Constraint("DistanceX", -1, 1, 30, 3, Q("64.77 mm")))
sketch1.addConstraint(Sketcher.Constraint("DistanceX", -1, 1, 33, 3, Q("99.06 mm")))
sketch1.addConstraint(Sketcher.Constraint("DistanceX", -1, 1, 34, 3, Q("96.52 mm")))
sketch1.addConstraint(Sketcher.Constraint("DistanceX", -1, 1, 35, 3, Q("93.98 mm")))
sketch1.addConstraint(Sketcher.Constraint("DistanceX", -1, 1, 36, 3, Q("91.44 mm")))
sketch1.addConstraint(Sketcher.Constraint("DistanceX", -1, 1, 38, 3, Q("86.36 mm")))
sketch1.addConstraint(Sketcher.Constraint("DistanceX", -1, 1, 39, 3, Q("83.82 mm")))
sketch1.addConstraint(Sketcher.Constraint("DistanceX", -1, 1, 40, 3, Q("81.28 mm")))
sketch1.addConstraint(Sketcher.Constraint("DistanceX", -1, 1, 41, 3, Q("78.74 mm")))
sketch1.addConstraint(Sketcher.Constraint("DistanceX", -1, 1, 43, 3, Q("73.66 mm")))
sketch1.addConstraint(Sketcher.Constraint("DistanceX", -1, 1, 44, 3, Q("71.12 mm")))
sketch1.addConstraint(Sketcher.Constraint("DistanceX", -1, 1, 46, 3, Q("68.58 mm")))
sketch1.addConstraint(Sketcher.Constraint("DistanceX", -1, 1, 47, 3, Q("66.04 mm")))
sketch1.addConstraint(Sketcher.Constraint("DistanceY", 49, 3, -1, 1, Q("19.05 mm")))
sketch1.addConstraint(Sketcher.Constraint("DistanceY", 50, 3, -1, 1, Q("16.51 mm")))
sketch1.addConstraint(Sketcher.Constraint("DistanceY", 51, 3, -1, 1, Q("13.97 mm")))
sketch1.addConstraint(Sketcher.Constraint("DistanceY", 52, 3, -1, 1, Q("11.43 mm")))
sketch1.addConstraint(Sketcher.Constraint("DistanceY", 53, 3, -1, 1, Q("8.89 mm")))
sketch1.addConstraint(Sketcher.Constraint("DistanceY", 54, 3, -1, 1, Q("6.35 mm")))
sketch1.addConstraint(Sketcher.Constraint("DistanceY", 55, 3, -1, 1, Q("3.81 mm")))
sketch1.addConstraint(Sketcher.Constraint("DistanceY", -1, 1, 74, 3, Q("10.16 mm")))
sketch1.addConstraint(Sketcher.Constraint("DistanceX", -1, 1, 7, 2, Q("151.13 mm")))
sketch1.addConstraint(Sketcher.Constraint("DistanceX", 16, 2, 16, 1, Q("91.1225 mm")))
sketch1.addConstraint(Sketcher.Constraint("DistanceX", -1, 1, 22, 3, Q("150.495 mm")))
sketch1.addConstraint(Sketcher.Constraint("DistanceX", -1, 1, 29, 3, Q("60.325 mm")))
sketch1.addConstraint(Sketcher.Constraint("DistanceX", -1, 1, 20, 3, Q("149.5425 mm")))
sketch1.addConstraint(Sketcher.Constraint("DistanceY", 21, 3, -1, 1, Q("44.7675 mm")))
sketch1.addConstraint(Sketcher.Constraint("DistanceY", 30, 3, -1, 1, Q("43.4975 mm")))
sketch1.addConstraint(Sketcher.Constraint("DistanceY", 31, 3, -1, 1, Q("40.9575 mm")))
sketch1.addConstraint(Sketcher.Constraint("DistanceY", 45, 3, -1, 1, Q("35.8775 mm")))
sketch1.addConstraint(Sketcher.Constraint("DistanceX", -1, 1, 2, 2, Q("57.4675 mm")))
sketch1.addConstraint(Sketcher.Constraint("DistanceY", 2, 2, -1, 1, Q("52.3875 mm")))
sketch1.addConstraint(Sketcher.Constraint("DistanceY", 3, 2, -1, 1, Q("53.0225 mm")))
sketch1.addConstraint(Sketcher.Constraint("DistanceY", 5, 2, -1, 1, Q("53.6575 mm")))
sketch1.addConstraint(Sketcher.Constraint("DistanceY", -1, 1, 12, 2, Q("11.7475 mm")))
sketch1.addConstraint(Sketcher.Constraint("Distance", 0, Q("0.809489 mm")))
sketch1.addConstraint(Sketcher.Constraint("Distance", 3, Q("0.79374 mm")))
sketch1.addConstraint(Sketcher.Constraint("Distance", 8, Q("0.925641 mm")))
sketch1.addConstraint(Sketcher.Constraint("DistanceY", 1, 2, 1, 1, Q("62.547467 mm")))
sketch1.addConstraint(Sketcher.Constraint("Distance", 10, Q("0.809482 mm")))
sketch1.addConstraint(Sketcher.Constraint("DistanceY", 32, 3, -1, 1, Q("38.417467 mm")))
sketch1.addConstraint(Sketcher.Constraint("DistanceY", -1, 1, 56, 3, Q("4.286267 mm")))
sketch1.addConstraint(Sketcher.Constraint("DistanceY", -1, 1, 57, 3, Q("10.318733 mm")))
sketch1.addConstraint(Sketcher.Constraint("DistanceY", 58, 3, -1, 1, Q("8.731233 mm")))
sketch1.addConstraint(Sketcher.Constraint("DistanceX", -1, 1, 73, 3, Q("66.198733 mm")))
sketch1.setExpression("Constraints[165]", "Params.sketch1_diameter")
sketch1.setExpression("Constraints[166]", "Params.sketch1_diameter2")
sketch1.setExpression("Constraints[167]", "Params.sketch1_diameter3")
pad1 = body.newObject("PartDesign::Pad", "Pad")
pad1.Profile = sketch1
pad1.setExpression("Length", "Params.pad1_length")

doc.recompute()
